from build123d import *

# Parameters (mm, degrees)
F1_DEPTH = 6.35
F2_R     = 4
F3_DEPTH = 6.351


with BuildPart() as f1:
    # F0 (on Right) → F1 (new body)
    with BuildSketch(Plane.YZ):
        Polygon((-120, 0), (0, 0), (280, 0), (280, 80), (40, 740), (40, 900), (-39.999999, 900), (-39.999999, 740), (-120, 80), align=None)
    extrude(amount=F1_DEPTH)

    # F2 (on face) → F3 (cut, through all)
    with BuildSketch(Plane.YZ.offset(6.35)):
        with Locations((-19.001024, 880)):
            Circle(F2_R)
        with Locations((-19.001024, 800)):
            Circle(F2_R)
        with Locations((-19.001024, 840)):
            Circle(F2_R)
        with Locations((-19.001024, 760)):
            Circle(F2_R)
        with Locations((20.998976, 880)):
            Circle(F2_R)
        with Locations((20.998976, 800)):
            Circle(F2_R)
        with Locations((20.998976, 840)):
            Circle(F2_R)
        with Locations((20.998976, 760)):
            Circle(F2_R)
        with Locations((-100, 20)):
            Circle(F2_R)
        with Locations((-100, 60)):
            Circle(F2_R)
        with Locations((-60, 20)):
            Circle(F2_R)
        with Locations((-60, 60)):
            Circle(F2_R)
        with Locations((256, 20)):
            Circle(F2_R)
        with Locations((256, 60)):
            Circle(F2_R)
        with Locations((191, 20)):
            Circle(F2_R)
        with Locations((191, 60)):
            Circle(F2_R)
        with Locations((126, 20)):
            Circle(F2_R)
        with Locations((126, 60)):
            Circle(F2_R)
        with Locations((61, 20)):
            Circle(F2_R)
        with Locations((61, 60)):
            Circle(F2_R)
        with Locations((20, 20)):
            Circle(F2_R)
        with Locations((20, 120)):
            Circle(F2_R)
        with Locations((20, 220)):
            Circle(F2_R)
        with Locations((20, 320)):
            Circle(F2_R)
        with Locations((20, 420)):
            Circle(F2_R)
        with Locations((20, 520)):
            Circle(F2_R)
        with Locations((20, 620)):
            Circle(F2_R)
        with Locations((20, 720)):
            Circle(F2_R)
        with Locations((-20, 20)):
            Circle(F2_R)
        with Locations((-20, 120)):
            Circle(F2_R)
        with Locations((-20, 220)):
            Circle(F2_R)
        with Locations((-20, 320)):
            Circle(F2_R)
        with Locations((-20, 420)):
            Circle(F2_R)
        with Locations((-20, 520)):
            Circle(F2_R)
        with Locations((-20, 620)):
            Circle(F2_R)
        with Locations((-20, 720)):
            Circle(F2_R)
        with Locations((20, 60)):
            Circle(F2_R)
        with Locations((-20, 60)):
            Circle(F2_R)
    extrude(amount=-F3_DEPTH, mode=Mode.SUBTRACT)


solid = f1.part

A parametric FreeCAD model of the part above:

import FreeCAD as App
import Part
import Sketcher

V = App.Vector


def add_polygon(sketch, points):
    """Adds a closed chain of lines whose ends are joined by coincident constraints."""
    first, n = sketch.GeometryCount, len(points)
    for a, b in zip(points, points[1:] + points[:1]):
        sketch.addGeometry(Part.LineSegment(App.Vector(*a, 0), App.Vector(*b, 0)), False)
    for i in range(n):
        sketch.addConstraint(Sketcher.Constraint("Coincident", first + i, 2, first + (i + 1) % n, 1))

doc = App.newDocument("Part")
params = doc.addObject("Spreadsheet::Sheet", "Params")
for row, (alias, value) in enumerate([
    ("sketch1_width", "400 mm"),
    ("sketch1_width2", "79.999999 mm"),
    ("sketch1_height", "160 mm"),
    ("pad1_length", "6.35 mm"),
    ("sketch2_diameter", "8 mm"),
], start=1):
    params.set(f"A{row}", alias)
    params.set(f"B{row}", "=" + value)
    params.setAlias(f"B{row}", alias)

body = doc.addObject("PartDesign::Body", "Body")

sketch1 = body.newObject("Sketcher::SketchObject", "Sketch")
sketch1.AttachmentSupport = (doc.getObject("YZ_Plane"), [""])
sketch1.MapMode = "FlatFace"
add_polygon(sketch1, [(-120, 0), (280, 0), (280, 80), (40, 740), (40, 900), (-39.999999, 900), (-39.999999, 740), (-120, 80)])
sketch1.addConstraint(Sketcher.Constraint("Horizontal", 0))
sketch1.addConstraint(Sketcher.Constraint("Vertical", 1))
sketch1.addConstraint(Sketcher.Constraint("Vertical", 3))
sketch1.addConstraint(Sketcher.Constraint("Horizontal", 4))
sketch1.addConstraint(Sketcher.Constraint("Vertical", 5))
sketch1.addConstraint(Sketcher.Constraint("Vertical", 7))
sketch1.addConstraint(Sketcher.Constraint("Symmetric", 2, 2, 5, 2, -2))
sketch1.addConstraint(Sketcher.Constraint("PointOnObject", 0, 2, -1))
sketch1.addConstraint(Sketcher.Constraint("Horizontal", 1, 2, 6, 2))
sketch1.addConstraint(Sketcher.Constraint("Equal", 4, 1))
sketch1.addConstraint(Sketcher.Constraint("DistanceX", 0, 1, 0, 2, 400.0))
sketch1.addConstraint(Sketcher.Constraint("DistanceX", 4, 2, 4, 1, 79.999999))
sketch1.addConstraint(Sketcher.Constraint("DistanceY", 3, 1, 3, 2, 160.0))
sketch1.addConstraint(Sketcher.Constraint("DistanceX", -1, 1, 0, 2, 280.0))
sketch1.addConstraint(Sketcher.Constraint("DistanceY", -1, 1, 2, 2, 740.0))
sketch1.setExpression("Constraints[18]", "Params.sketch1_width")
sketch1.setExpression("Constraints[19]", "Params.sketch1_width2")
sketch1.setExpression("Constraints[20]", "Params.sketch1_height")
pad1 = body.newObject("PartDesign::Pad", "Pad")
pad1.Profile = sketch1
pad1.setExpression("Length", "Params.pad1_length")

sketch2 = body.newObject("Sketcher::SketchObject", "Sketch001")
sketch2.AttachmentSupport = (doc.getObject("YZ_Plane"), [""])
sketch2.MapMode = "FlatFace"
sketch2.AttachmentOffset = App.Placement(V(0, 0, 6.35), App.Rotation())
sketch2.addGeometry(Part.Circle(V(-19.001024, 880, 0), V(0, 0, 1), 4), False)
sketch2.addGeometry(Part.Circle(V(-19.001024, 800, 0), V(0, 0, 1), 4), False)
sketch2.addGeometry(Part.Circle(V(-19.001024, 840, 0), V(0, 0, 1), 4), False)
sketch2.addGeometry(Part.Circle(V(-19.001024, 760, 0), V(0, 0, 1), 4), False)
sketch2.addGeometry(Part.Circle(V(20.998976, 880, 0), V(0, 0, 1), 4), False)
sketch2.addGeometry(Part.Circle(V(20.998976, 800, 0), V(0, 0, 1), 4), False)
sketch2.addGeometry(Part.Circle(V(20.998976, 840, 0), V(0, 0, 1), 4), False)
sketch2.addGeometry(Part.Circle(V(20.998976, 760, 0), V(0, 0, 1), 4), False)
sketch2.addGeometry(Part.Circle(V(-100, 20, 0), V(0, 0, 1), 4), False)
sketch2.addGeometry(Part.Circle(V(-100, 60, 0), V(0, 0, 1), 4), False)
sketch2.addGeometry(Part.Circle(V(-60, 20, 0), V(0, 0, 1), 4), False)
sketch2.addGeometry(Part.Circle(V(-60, 60, 0), V(0, 0, 1), 4), False)
sketch2.addGeometry(Part.Circle(V(256, 20, 0), V(0, 0, 1), 4), False)
sketch2.addGeometry(Part.Circle(V(256, 60, 0), V(0, 0, 1), 4), False)
sketch2.addGeometry(Part.Circle(V(191, 20, 0), V(0, 0, 1), 4), False)
sketch2.addGeometry(Part.Circle(V(191, 60, 0), V(0, 0, 1), 4), False)
sketch2.addGeometry(Part.Circle(V(126, 20, 0), V(0, 0, 1), 4), False)
sketch2.addGeometry(Part.Circle(V(126, 60, 0), V(0, 0, 1), 4), False)
sketch2.addGeometry(Part.Circle(V(61, 20, 0), V(0, 0, 1), 4), False)
sketch2.addGeometry(Part.Circle(V(61, 60, 0), V(0, 0, 1), 4), False)
sketch2.addGeometry(Part.Circle(V(20, 20, 0), V(0, 0, 1), 4), False)
sketch2.addGeometry(Part.Circle(V(20, 120, 0), V(0, 0, 1), 4), False)
sketch2.addGeometry(Part.Circle(V(20, 220, 0), V(0, 0, 1), 4), False)
sketch2.addGeometry(Part.Circle(V(20, 320, 0), V(0, 0, 1), 4), False)
sketch2.addGeometry(Part.Circle(V(20, 420, 0), V(0, 0, 1), 4), False)
sketch2.addGeometry(Part.Circle(V(20, 520, 0), V(0, 0, 1), 4), False)
sketch2.addGeometry(Part.Circle(V(20, 620, 0), V(0, 0, 1), 4), False)
sketch2.addGeometry(Part.Circle(V(20, 720, 0), V(0, 0, 1), 4), False)
sketch2.addGeometry(Part.Circle(V(-20, 20, 0), V(0, 0, 1), 4), False)
sketch2.addGeometry(Part.Circle(V(-20, 120, 0), V(0, 0, 1), 4), False)
sketch2.addGeometry(Part.Circle(V(-20, 220, 0), V(0, 0, 1), 4), False)
sketch2.addGeometry(Part.Circle(V(-20, 320, 0), V(0, 0, 1), 4), False)
sketch2.addGeometry(Part.Circle(V(-20, 420, 0), V(0, 0, 1), 4), False)
sketch2.addGeometry(Part.Circle(V(-20, 520, 0), V(0, 0, 1), 4), False)
sketch2.addGeometry(Part.Circle(V(-20, 620, 0), V(0, 0, 1), 4), False)
sketch2.addGeometry(Part.Circle(V(-20, 720, 0), V(0, 0, 1), 4), False)
sketch2.addGeometry(Part.Circle(V(20, 60, 0), V(0, 0, 1), 4), False)
sketch2.addGeometry(Part.Circle(V(-20, 60, 0), V(0, 0, 1), 4), False)
sketch2.addConstraint(Sketcher.Constraint("Equal", 0, 1))
sketch2.addConstraint(Sketcher.Constraint("Equal", 1, 2))
sketch2.addConstraint(Sketcher.Constraint("Equal", 2, 3))
sketch2.addConstraint(Sketcher.Constraint("Equal", 3, 4))
sketch2.addConstraint(Sketcher.Constraint("Equal", 4, 5))
sketch2.addConstraint(Sketcher.Constraint("Equal", 5, 6))
sketch2.addConstraint(Sketcher.Constraint("Equal", 6, 7))
sketch2.addConstraint(Sketcher.Constraint("Equal", 7, 8))
sketch2.addConstraint(Sketcher.Constraint("Equal", 8, 9))
sketch2.addConstraint(Sketcher.Constraint("Equal", 9, 10))
sketch2.addConstraint(Sketcher.Constraint("Equal", 10, 11))
sketch2.addConstraint(Sketcher.Constraint("Equal", 11, 12))
sketch2.addConstraint(Sketcher.Constraint("Equal", 12, 13))
sketch2.addConstraint(Sketcher.Constraint("Equal", 13, 14))
sketch2.addConstraint(Sketcher.Constraint("Equal", 14, 15))
sketch2.addConstraint(Sketcher.Constraint("Equal", 15, 16))
sketch2.addConstraint(Sketcher.Constraint("Equal", 16, 17))
sketch2.addConstraint(Sketcher.Constraint("Equal", 17, 18))
sketch2.addConstraint(Sketcher.Constraint("Equal", 18, 19))
sketch2.addConstraint(Sketcher.Constraint("Equal", 19, 20))
sketch2.addConstraint(Sketcher.Constraint("Equal", 20, 21))
sketch2.addConstraint(Sketcher.Constraint("Equal", 21, 22))
sketch2.addConstraint(Sketcher.Constraint("Equal", 22, 23))
sketch2.addConstraint(Sketcher.Constraint("Equal", 23, 24))
sketch2.addConstraint(Sketcher.Constraint("Equal", 24, 25))
sketch2.addConstraint(Sketcher.Constraint("Equal", 25, 26))
sketch2.addConstraint(Sketcher.Constraint("Equal", 26, 27))
sketch2.addConstraint(Sketcher.Constraint("Equal", 27, 28))
sketch2.addConstraint(Sketcher.Constraint("Equal", 28, 29))
sketch2.addConstraint(Sketcher.Constraint("Equal", 29, 30))
sketch2.addConstraint(Sketcher.Constraint("Equal", 30, 31))
sketch2.addConstraint(Sketcher.Constraint("Equal", 31, 32))
sketch2.addConstraint(Sketcher.Constraint("Equal", 32, 33))
sketch2.addConstraint(Sketcher.Constraint("Equal", 33, 34))
sketch2.addConstraint(Sketcher.Constraint("Equal", 34, 35))
sketch2.addConstraint(Sketcher.Constraint("Equal", 35, 36))
sketch2.addConstraint(Sketcher.Constraint("Equal", 36, 37))
sketch2.addConstraint(Sketcher.Constraint("Symmetric", 20, 3, 28, 3, -2))
sketch2.addConstraint(Sketcher.Constraint("Symmetric", 21, 3, 29, 3, -2))
sketch2.addConstraint(Sketcher.Constraint("Symmetric", 22, 3, 30, 3, -2))
sketch2.addConstraint(Sketcher.Constraint("Symmetric", 23, 3, 31, 3, -2))
sketch2.addConstraint(Sketcher.Constraint("Symmetric", 24, 3, 32, 3, -2))
sketch2.addConstraint(Sketcher.Constraint("Symmetric", 25, 3, 33, 3, -2))
sketch2.addConstraint(Sketcher.Constraint("Symmetric", 26, 3, 34, 3, -2))
sketch2.addConstraint(Sketcher.Constraint("Symmetric", 27, 3, 35, 3, -2))
sketch2.addConstraint(Sketcher.Constraint("Symmetric", 36, 3, 37, 3, -2))
sketch2.addConstraint(Sketcher.Constraint("Horizontal", 0, 3, 4, 3))
sketch2.addConstraint(Sketcher.Constraint("Horizontal", 1, 3, 5, 3))
sketch2.addConstraint(Sketcher.Constraint("Horizontal", 2, 3, 6, 3))
sketch2.addConstraint(Sketcher.Constraint("Horizontal", 3, 3, 7, 3))
sketch2.addConstraint(Sketcher.Constraint("Horizontal", 8, 3, 10, 3))
sketch2.addConstraint(Sketcher.Constraint("Horizontal", 9, 3, 11, 3))
sketch2.addConstraint(Sketcher.Constraint("Horizontal", 10, 3, 12, 3))
sketch2.addConstraint(Sketcher.Constraint("Horizontal", 11, 3, 13, 3))
sketch2.addConstraint(Sketcher.Constraint("Horizontal", 12, 3, 14, 3))
sketch2.addConstraint(Sketcher.Constraint("Horizontal", 13, 3, 15, 3))
sketch2.addConstraint(Sketcher.Constraint("Horizontal", 14, 3, 16, 3))
sketch2.addConstraint(Sketcher.Constraint("Horizontal", 15, 3, 17, 3))
sketch2.addConstraint(Sketcher.Constraint("Horizontal", 16, 3, 18, 3))
sketch2.addConstraint(Sketcher.Constraint("Horizontal", 17, 3, 19, 3))
sketch2.addConstraint(Sketcher.Constraint("Horizontal", 18, 3, 20, 3))
sketch2.addConstraint(Sketcher.Constraint("Horizontal", 19, 3, 36, 3))
sketch2.addConstraint(Sketcher.Constraint("Vertical", 0, 3, 1, 3))
sketch2.addConstraint(Sketcher.Constraint("Vertical", 1, 3, 2, 3))
sketch2.addConstraint(Sketcher.Constraint("Vertical", 2, 3, 3, 3))
sketch2.addConstraint(Sketcher.Constraint("Vertical", 4, 3, 5, 3))
sketch2.addConstraint(Sketcher.Constraint("Vertical", 5, 3, 6, 3))
sketch2.addConstraint(Sketcher.Constraint("Vertical", 6, 3, 7, 3))
sketch2.addConstraint(Sketcher.Constraint("Vertical", 8, 3, 9, 3))
sketch2.addConstraint(Sketcher.Constraint("Vertical", 10, 3, 11, 3))
sketch2.addConstraint(Sketcher.Constraint("Vertical", 12, 3, 13, 3))
sketch2.addConstraint(Sketcher.Constraint("Vertical", 14, 3, 15, 3))
sketch2.addConstraint(Sketcher.Constraint("Vertical", 16, 3, 17, 3))
sketch2.addConstraint(Sketcher.Constraint("Vertical", 18, 3, 19, 3))
sketch2.addConstraint(Sketcher.Constraint("Vertical", 20, 3, 21, 3))
sketch2.addConstraint(Sketcher.Constraint("Vertical", 21, 3, 22, 3))
sketch2.addConstraint(Sketcher.Constraint("Vertical", 22, 3, 23, 3))
sketch2.addConstraint(Sketcher.Constraint("Vertical", 23, 3, 24, 3))
sketch2.addConstraint(Sketcher.Constraint("Vertical", 24, 3, 25, 3))
sketch2.addConstraint(Sketcher.Constraint("Vertical", 25, 3, 26, 3))
sketch2.addConstraint(Sketcher.Constraint("Vertical", 26, 3, 27, 3))
sketch2.addConstraint(Sketcher.Constraint("Vertical", 27, 3, 36, 3))
sketch2.addConstraint(Sketcher.Constraint("Diameter", 0, 8.0))
sketch2.addConstraint(Sketcher.Constraint("DistanceY", -1, 1, 0, 3, 880.0))
sketch2.addConstraint(Sketcher.Constraint("DistanceY", -1, 1, 1, 3, 800.0))
sketch2.addConstraint(Sketcher.Constraint("DistanceY", -1, 1, 2, 3, 840.0))
sketch2.addConstraint(Sketcher.Constraint("DistanceY", -1, 1, 3, 3, 760.0))
sketch2.addConstraint(Sketcher.Constraint("DistanceX", 8, 3, -1, 1, 100.0))
sketch2.addConstraint(Sketcher.Constraint("DistanceY", -1, 1, 8, 3, 20.0))
sketch2.addConstraint(Sketcher.Constraint("DistanceY", -1, 1, 9, 3, 60.0))
sketch2.addConstraint(Sketcher.Constraint("DistanceX", 10, 3, -1, 1, 60.0))
sketch2.addConstraint(Sketcher.Constraint("DistanceX", -1, 1, 12, 3, 256.0))
sketch2.addConstraint(Sketcher.Constraint("DistanceX", -1, 1, 14, 3, 191.0))
sketch2.addConstraint(Sketcher.Constraint("DistanceX", -1, 1, 16, 3, 126.0))
sketch2.addConstraint(Sketcher.Constraint("DistanceX", -1, 1, 18, 3, 61.0))
sketch2.addConstraint(Sketcher.Constraint("DistanceX", -1, 1, 20, 3, 20.0))
sketch2.addConstraint(Sketcher.Constraint("DistanceY", -1, 1, 21, 3, 120.0))
sketch2.addConstraint(Sketcher.Constraint("DistanceY", -1, 1, 22, 3, 220.0))
sketch2.addConstraint(Sketcher.Constraint("DistanceY", -1, 1, 23, 3, 320.0))
sketch2.addConstraint(Sketcher.Constraint("DistanceY", -1, 1, 24, 3, 420.0))
sketch2.addConstraint(Sketcher.Constraint("DistanceY", -1, 1, 25, 3, 520.0))
sketch2.addConstraint(Sketcher.Constraint("DistanceY", -1, 1, 26, 3, 620.0))
sketch2.addConstraint(Sketcher.Constraint("DistanceY", -1, 1, 27, 3, 720.0))
sketch2.addConstraint(Sketcher.Constraint("DistanceX", 0, 3, 4, 3, 40.0))
sketch2.addConstraint(Sketcher.Constraint("DistanceX", 0, 3, -1, 1, 19.001024))
sketch2.setExpression("Constraints[82]", "Params.sketch2_diameter")
pocket1 = body.newObject("PartDesign::Pocket", "Pocket")
pocket1.Profile = sketch2
pocket1.Type = "ThroughAll"

doc.recompute()
